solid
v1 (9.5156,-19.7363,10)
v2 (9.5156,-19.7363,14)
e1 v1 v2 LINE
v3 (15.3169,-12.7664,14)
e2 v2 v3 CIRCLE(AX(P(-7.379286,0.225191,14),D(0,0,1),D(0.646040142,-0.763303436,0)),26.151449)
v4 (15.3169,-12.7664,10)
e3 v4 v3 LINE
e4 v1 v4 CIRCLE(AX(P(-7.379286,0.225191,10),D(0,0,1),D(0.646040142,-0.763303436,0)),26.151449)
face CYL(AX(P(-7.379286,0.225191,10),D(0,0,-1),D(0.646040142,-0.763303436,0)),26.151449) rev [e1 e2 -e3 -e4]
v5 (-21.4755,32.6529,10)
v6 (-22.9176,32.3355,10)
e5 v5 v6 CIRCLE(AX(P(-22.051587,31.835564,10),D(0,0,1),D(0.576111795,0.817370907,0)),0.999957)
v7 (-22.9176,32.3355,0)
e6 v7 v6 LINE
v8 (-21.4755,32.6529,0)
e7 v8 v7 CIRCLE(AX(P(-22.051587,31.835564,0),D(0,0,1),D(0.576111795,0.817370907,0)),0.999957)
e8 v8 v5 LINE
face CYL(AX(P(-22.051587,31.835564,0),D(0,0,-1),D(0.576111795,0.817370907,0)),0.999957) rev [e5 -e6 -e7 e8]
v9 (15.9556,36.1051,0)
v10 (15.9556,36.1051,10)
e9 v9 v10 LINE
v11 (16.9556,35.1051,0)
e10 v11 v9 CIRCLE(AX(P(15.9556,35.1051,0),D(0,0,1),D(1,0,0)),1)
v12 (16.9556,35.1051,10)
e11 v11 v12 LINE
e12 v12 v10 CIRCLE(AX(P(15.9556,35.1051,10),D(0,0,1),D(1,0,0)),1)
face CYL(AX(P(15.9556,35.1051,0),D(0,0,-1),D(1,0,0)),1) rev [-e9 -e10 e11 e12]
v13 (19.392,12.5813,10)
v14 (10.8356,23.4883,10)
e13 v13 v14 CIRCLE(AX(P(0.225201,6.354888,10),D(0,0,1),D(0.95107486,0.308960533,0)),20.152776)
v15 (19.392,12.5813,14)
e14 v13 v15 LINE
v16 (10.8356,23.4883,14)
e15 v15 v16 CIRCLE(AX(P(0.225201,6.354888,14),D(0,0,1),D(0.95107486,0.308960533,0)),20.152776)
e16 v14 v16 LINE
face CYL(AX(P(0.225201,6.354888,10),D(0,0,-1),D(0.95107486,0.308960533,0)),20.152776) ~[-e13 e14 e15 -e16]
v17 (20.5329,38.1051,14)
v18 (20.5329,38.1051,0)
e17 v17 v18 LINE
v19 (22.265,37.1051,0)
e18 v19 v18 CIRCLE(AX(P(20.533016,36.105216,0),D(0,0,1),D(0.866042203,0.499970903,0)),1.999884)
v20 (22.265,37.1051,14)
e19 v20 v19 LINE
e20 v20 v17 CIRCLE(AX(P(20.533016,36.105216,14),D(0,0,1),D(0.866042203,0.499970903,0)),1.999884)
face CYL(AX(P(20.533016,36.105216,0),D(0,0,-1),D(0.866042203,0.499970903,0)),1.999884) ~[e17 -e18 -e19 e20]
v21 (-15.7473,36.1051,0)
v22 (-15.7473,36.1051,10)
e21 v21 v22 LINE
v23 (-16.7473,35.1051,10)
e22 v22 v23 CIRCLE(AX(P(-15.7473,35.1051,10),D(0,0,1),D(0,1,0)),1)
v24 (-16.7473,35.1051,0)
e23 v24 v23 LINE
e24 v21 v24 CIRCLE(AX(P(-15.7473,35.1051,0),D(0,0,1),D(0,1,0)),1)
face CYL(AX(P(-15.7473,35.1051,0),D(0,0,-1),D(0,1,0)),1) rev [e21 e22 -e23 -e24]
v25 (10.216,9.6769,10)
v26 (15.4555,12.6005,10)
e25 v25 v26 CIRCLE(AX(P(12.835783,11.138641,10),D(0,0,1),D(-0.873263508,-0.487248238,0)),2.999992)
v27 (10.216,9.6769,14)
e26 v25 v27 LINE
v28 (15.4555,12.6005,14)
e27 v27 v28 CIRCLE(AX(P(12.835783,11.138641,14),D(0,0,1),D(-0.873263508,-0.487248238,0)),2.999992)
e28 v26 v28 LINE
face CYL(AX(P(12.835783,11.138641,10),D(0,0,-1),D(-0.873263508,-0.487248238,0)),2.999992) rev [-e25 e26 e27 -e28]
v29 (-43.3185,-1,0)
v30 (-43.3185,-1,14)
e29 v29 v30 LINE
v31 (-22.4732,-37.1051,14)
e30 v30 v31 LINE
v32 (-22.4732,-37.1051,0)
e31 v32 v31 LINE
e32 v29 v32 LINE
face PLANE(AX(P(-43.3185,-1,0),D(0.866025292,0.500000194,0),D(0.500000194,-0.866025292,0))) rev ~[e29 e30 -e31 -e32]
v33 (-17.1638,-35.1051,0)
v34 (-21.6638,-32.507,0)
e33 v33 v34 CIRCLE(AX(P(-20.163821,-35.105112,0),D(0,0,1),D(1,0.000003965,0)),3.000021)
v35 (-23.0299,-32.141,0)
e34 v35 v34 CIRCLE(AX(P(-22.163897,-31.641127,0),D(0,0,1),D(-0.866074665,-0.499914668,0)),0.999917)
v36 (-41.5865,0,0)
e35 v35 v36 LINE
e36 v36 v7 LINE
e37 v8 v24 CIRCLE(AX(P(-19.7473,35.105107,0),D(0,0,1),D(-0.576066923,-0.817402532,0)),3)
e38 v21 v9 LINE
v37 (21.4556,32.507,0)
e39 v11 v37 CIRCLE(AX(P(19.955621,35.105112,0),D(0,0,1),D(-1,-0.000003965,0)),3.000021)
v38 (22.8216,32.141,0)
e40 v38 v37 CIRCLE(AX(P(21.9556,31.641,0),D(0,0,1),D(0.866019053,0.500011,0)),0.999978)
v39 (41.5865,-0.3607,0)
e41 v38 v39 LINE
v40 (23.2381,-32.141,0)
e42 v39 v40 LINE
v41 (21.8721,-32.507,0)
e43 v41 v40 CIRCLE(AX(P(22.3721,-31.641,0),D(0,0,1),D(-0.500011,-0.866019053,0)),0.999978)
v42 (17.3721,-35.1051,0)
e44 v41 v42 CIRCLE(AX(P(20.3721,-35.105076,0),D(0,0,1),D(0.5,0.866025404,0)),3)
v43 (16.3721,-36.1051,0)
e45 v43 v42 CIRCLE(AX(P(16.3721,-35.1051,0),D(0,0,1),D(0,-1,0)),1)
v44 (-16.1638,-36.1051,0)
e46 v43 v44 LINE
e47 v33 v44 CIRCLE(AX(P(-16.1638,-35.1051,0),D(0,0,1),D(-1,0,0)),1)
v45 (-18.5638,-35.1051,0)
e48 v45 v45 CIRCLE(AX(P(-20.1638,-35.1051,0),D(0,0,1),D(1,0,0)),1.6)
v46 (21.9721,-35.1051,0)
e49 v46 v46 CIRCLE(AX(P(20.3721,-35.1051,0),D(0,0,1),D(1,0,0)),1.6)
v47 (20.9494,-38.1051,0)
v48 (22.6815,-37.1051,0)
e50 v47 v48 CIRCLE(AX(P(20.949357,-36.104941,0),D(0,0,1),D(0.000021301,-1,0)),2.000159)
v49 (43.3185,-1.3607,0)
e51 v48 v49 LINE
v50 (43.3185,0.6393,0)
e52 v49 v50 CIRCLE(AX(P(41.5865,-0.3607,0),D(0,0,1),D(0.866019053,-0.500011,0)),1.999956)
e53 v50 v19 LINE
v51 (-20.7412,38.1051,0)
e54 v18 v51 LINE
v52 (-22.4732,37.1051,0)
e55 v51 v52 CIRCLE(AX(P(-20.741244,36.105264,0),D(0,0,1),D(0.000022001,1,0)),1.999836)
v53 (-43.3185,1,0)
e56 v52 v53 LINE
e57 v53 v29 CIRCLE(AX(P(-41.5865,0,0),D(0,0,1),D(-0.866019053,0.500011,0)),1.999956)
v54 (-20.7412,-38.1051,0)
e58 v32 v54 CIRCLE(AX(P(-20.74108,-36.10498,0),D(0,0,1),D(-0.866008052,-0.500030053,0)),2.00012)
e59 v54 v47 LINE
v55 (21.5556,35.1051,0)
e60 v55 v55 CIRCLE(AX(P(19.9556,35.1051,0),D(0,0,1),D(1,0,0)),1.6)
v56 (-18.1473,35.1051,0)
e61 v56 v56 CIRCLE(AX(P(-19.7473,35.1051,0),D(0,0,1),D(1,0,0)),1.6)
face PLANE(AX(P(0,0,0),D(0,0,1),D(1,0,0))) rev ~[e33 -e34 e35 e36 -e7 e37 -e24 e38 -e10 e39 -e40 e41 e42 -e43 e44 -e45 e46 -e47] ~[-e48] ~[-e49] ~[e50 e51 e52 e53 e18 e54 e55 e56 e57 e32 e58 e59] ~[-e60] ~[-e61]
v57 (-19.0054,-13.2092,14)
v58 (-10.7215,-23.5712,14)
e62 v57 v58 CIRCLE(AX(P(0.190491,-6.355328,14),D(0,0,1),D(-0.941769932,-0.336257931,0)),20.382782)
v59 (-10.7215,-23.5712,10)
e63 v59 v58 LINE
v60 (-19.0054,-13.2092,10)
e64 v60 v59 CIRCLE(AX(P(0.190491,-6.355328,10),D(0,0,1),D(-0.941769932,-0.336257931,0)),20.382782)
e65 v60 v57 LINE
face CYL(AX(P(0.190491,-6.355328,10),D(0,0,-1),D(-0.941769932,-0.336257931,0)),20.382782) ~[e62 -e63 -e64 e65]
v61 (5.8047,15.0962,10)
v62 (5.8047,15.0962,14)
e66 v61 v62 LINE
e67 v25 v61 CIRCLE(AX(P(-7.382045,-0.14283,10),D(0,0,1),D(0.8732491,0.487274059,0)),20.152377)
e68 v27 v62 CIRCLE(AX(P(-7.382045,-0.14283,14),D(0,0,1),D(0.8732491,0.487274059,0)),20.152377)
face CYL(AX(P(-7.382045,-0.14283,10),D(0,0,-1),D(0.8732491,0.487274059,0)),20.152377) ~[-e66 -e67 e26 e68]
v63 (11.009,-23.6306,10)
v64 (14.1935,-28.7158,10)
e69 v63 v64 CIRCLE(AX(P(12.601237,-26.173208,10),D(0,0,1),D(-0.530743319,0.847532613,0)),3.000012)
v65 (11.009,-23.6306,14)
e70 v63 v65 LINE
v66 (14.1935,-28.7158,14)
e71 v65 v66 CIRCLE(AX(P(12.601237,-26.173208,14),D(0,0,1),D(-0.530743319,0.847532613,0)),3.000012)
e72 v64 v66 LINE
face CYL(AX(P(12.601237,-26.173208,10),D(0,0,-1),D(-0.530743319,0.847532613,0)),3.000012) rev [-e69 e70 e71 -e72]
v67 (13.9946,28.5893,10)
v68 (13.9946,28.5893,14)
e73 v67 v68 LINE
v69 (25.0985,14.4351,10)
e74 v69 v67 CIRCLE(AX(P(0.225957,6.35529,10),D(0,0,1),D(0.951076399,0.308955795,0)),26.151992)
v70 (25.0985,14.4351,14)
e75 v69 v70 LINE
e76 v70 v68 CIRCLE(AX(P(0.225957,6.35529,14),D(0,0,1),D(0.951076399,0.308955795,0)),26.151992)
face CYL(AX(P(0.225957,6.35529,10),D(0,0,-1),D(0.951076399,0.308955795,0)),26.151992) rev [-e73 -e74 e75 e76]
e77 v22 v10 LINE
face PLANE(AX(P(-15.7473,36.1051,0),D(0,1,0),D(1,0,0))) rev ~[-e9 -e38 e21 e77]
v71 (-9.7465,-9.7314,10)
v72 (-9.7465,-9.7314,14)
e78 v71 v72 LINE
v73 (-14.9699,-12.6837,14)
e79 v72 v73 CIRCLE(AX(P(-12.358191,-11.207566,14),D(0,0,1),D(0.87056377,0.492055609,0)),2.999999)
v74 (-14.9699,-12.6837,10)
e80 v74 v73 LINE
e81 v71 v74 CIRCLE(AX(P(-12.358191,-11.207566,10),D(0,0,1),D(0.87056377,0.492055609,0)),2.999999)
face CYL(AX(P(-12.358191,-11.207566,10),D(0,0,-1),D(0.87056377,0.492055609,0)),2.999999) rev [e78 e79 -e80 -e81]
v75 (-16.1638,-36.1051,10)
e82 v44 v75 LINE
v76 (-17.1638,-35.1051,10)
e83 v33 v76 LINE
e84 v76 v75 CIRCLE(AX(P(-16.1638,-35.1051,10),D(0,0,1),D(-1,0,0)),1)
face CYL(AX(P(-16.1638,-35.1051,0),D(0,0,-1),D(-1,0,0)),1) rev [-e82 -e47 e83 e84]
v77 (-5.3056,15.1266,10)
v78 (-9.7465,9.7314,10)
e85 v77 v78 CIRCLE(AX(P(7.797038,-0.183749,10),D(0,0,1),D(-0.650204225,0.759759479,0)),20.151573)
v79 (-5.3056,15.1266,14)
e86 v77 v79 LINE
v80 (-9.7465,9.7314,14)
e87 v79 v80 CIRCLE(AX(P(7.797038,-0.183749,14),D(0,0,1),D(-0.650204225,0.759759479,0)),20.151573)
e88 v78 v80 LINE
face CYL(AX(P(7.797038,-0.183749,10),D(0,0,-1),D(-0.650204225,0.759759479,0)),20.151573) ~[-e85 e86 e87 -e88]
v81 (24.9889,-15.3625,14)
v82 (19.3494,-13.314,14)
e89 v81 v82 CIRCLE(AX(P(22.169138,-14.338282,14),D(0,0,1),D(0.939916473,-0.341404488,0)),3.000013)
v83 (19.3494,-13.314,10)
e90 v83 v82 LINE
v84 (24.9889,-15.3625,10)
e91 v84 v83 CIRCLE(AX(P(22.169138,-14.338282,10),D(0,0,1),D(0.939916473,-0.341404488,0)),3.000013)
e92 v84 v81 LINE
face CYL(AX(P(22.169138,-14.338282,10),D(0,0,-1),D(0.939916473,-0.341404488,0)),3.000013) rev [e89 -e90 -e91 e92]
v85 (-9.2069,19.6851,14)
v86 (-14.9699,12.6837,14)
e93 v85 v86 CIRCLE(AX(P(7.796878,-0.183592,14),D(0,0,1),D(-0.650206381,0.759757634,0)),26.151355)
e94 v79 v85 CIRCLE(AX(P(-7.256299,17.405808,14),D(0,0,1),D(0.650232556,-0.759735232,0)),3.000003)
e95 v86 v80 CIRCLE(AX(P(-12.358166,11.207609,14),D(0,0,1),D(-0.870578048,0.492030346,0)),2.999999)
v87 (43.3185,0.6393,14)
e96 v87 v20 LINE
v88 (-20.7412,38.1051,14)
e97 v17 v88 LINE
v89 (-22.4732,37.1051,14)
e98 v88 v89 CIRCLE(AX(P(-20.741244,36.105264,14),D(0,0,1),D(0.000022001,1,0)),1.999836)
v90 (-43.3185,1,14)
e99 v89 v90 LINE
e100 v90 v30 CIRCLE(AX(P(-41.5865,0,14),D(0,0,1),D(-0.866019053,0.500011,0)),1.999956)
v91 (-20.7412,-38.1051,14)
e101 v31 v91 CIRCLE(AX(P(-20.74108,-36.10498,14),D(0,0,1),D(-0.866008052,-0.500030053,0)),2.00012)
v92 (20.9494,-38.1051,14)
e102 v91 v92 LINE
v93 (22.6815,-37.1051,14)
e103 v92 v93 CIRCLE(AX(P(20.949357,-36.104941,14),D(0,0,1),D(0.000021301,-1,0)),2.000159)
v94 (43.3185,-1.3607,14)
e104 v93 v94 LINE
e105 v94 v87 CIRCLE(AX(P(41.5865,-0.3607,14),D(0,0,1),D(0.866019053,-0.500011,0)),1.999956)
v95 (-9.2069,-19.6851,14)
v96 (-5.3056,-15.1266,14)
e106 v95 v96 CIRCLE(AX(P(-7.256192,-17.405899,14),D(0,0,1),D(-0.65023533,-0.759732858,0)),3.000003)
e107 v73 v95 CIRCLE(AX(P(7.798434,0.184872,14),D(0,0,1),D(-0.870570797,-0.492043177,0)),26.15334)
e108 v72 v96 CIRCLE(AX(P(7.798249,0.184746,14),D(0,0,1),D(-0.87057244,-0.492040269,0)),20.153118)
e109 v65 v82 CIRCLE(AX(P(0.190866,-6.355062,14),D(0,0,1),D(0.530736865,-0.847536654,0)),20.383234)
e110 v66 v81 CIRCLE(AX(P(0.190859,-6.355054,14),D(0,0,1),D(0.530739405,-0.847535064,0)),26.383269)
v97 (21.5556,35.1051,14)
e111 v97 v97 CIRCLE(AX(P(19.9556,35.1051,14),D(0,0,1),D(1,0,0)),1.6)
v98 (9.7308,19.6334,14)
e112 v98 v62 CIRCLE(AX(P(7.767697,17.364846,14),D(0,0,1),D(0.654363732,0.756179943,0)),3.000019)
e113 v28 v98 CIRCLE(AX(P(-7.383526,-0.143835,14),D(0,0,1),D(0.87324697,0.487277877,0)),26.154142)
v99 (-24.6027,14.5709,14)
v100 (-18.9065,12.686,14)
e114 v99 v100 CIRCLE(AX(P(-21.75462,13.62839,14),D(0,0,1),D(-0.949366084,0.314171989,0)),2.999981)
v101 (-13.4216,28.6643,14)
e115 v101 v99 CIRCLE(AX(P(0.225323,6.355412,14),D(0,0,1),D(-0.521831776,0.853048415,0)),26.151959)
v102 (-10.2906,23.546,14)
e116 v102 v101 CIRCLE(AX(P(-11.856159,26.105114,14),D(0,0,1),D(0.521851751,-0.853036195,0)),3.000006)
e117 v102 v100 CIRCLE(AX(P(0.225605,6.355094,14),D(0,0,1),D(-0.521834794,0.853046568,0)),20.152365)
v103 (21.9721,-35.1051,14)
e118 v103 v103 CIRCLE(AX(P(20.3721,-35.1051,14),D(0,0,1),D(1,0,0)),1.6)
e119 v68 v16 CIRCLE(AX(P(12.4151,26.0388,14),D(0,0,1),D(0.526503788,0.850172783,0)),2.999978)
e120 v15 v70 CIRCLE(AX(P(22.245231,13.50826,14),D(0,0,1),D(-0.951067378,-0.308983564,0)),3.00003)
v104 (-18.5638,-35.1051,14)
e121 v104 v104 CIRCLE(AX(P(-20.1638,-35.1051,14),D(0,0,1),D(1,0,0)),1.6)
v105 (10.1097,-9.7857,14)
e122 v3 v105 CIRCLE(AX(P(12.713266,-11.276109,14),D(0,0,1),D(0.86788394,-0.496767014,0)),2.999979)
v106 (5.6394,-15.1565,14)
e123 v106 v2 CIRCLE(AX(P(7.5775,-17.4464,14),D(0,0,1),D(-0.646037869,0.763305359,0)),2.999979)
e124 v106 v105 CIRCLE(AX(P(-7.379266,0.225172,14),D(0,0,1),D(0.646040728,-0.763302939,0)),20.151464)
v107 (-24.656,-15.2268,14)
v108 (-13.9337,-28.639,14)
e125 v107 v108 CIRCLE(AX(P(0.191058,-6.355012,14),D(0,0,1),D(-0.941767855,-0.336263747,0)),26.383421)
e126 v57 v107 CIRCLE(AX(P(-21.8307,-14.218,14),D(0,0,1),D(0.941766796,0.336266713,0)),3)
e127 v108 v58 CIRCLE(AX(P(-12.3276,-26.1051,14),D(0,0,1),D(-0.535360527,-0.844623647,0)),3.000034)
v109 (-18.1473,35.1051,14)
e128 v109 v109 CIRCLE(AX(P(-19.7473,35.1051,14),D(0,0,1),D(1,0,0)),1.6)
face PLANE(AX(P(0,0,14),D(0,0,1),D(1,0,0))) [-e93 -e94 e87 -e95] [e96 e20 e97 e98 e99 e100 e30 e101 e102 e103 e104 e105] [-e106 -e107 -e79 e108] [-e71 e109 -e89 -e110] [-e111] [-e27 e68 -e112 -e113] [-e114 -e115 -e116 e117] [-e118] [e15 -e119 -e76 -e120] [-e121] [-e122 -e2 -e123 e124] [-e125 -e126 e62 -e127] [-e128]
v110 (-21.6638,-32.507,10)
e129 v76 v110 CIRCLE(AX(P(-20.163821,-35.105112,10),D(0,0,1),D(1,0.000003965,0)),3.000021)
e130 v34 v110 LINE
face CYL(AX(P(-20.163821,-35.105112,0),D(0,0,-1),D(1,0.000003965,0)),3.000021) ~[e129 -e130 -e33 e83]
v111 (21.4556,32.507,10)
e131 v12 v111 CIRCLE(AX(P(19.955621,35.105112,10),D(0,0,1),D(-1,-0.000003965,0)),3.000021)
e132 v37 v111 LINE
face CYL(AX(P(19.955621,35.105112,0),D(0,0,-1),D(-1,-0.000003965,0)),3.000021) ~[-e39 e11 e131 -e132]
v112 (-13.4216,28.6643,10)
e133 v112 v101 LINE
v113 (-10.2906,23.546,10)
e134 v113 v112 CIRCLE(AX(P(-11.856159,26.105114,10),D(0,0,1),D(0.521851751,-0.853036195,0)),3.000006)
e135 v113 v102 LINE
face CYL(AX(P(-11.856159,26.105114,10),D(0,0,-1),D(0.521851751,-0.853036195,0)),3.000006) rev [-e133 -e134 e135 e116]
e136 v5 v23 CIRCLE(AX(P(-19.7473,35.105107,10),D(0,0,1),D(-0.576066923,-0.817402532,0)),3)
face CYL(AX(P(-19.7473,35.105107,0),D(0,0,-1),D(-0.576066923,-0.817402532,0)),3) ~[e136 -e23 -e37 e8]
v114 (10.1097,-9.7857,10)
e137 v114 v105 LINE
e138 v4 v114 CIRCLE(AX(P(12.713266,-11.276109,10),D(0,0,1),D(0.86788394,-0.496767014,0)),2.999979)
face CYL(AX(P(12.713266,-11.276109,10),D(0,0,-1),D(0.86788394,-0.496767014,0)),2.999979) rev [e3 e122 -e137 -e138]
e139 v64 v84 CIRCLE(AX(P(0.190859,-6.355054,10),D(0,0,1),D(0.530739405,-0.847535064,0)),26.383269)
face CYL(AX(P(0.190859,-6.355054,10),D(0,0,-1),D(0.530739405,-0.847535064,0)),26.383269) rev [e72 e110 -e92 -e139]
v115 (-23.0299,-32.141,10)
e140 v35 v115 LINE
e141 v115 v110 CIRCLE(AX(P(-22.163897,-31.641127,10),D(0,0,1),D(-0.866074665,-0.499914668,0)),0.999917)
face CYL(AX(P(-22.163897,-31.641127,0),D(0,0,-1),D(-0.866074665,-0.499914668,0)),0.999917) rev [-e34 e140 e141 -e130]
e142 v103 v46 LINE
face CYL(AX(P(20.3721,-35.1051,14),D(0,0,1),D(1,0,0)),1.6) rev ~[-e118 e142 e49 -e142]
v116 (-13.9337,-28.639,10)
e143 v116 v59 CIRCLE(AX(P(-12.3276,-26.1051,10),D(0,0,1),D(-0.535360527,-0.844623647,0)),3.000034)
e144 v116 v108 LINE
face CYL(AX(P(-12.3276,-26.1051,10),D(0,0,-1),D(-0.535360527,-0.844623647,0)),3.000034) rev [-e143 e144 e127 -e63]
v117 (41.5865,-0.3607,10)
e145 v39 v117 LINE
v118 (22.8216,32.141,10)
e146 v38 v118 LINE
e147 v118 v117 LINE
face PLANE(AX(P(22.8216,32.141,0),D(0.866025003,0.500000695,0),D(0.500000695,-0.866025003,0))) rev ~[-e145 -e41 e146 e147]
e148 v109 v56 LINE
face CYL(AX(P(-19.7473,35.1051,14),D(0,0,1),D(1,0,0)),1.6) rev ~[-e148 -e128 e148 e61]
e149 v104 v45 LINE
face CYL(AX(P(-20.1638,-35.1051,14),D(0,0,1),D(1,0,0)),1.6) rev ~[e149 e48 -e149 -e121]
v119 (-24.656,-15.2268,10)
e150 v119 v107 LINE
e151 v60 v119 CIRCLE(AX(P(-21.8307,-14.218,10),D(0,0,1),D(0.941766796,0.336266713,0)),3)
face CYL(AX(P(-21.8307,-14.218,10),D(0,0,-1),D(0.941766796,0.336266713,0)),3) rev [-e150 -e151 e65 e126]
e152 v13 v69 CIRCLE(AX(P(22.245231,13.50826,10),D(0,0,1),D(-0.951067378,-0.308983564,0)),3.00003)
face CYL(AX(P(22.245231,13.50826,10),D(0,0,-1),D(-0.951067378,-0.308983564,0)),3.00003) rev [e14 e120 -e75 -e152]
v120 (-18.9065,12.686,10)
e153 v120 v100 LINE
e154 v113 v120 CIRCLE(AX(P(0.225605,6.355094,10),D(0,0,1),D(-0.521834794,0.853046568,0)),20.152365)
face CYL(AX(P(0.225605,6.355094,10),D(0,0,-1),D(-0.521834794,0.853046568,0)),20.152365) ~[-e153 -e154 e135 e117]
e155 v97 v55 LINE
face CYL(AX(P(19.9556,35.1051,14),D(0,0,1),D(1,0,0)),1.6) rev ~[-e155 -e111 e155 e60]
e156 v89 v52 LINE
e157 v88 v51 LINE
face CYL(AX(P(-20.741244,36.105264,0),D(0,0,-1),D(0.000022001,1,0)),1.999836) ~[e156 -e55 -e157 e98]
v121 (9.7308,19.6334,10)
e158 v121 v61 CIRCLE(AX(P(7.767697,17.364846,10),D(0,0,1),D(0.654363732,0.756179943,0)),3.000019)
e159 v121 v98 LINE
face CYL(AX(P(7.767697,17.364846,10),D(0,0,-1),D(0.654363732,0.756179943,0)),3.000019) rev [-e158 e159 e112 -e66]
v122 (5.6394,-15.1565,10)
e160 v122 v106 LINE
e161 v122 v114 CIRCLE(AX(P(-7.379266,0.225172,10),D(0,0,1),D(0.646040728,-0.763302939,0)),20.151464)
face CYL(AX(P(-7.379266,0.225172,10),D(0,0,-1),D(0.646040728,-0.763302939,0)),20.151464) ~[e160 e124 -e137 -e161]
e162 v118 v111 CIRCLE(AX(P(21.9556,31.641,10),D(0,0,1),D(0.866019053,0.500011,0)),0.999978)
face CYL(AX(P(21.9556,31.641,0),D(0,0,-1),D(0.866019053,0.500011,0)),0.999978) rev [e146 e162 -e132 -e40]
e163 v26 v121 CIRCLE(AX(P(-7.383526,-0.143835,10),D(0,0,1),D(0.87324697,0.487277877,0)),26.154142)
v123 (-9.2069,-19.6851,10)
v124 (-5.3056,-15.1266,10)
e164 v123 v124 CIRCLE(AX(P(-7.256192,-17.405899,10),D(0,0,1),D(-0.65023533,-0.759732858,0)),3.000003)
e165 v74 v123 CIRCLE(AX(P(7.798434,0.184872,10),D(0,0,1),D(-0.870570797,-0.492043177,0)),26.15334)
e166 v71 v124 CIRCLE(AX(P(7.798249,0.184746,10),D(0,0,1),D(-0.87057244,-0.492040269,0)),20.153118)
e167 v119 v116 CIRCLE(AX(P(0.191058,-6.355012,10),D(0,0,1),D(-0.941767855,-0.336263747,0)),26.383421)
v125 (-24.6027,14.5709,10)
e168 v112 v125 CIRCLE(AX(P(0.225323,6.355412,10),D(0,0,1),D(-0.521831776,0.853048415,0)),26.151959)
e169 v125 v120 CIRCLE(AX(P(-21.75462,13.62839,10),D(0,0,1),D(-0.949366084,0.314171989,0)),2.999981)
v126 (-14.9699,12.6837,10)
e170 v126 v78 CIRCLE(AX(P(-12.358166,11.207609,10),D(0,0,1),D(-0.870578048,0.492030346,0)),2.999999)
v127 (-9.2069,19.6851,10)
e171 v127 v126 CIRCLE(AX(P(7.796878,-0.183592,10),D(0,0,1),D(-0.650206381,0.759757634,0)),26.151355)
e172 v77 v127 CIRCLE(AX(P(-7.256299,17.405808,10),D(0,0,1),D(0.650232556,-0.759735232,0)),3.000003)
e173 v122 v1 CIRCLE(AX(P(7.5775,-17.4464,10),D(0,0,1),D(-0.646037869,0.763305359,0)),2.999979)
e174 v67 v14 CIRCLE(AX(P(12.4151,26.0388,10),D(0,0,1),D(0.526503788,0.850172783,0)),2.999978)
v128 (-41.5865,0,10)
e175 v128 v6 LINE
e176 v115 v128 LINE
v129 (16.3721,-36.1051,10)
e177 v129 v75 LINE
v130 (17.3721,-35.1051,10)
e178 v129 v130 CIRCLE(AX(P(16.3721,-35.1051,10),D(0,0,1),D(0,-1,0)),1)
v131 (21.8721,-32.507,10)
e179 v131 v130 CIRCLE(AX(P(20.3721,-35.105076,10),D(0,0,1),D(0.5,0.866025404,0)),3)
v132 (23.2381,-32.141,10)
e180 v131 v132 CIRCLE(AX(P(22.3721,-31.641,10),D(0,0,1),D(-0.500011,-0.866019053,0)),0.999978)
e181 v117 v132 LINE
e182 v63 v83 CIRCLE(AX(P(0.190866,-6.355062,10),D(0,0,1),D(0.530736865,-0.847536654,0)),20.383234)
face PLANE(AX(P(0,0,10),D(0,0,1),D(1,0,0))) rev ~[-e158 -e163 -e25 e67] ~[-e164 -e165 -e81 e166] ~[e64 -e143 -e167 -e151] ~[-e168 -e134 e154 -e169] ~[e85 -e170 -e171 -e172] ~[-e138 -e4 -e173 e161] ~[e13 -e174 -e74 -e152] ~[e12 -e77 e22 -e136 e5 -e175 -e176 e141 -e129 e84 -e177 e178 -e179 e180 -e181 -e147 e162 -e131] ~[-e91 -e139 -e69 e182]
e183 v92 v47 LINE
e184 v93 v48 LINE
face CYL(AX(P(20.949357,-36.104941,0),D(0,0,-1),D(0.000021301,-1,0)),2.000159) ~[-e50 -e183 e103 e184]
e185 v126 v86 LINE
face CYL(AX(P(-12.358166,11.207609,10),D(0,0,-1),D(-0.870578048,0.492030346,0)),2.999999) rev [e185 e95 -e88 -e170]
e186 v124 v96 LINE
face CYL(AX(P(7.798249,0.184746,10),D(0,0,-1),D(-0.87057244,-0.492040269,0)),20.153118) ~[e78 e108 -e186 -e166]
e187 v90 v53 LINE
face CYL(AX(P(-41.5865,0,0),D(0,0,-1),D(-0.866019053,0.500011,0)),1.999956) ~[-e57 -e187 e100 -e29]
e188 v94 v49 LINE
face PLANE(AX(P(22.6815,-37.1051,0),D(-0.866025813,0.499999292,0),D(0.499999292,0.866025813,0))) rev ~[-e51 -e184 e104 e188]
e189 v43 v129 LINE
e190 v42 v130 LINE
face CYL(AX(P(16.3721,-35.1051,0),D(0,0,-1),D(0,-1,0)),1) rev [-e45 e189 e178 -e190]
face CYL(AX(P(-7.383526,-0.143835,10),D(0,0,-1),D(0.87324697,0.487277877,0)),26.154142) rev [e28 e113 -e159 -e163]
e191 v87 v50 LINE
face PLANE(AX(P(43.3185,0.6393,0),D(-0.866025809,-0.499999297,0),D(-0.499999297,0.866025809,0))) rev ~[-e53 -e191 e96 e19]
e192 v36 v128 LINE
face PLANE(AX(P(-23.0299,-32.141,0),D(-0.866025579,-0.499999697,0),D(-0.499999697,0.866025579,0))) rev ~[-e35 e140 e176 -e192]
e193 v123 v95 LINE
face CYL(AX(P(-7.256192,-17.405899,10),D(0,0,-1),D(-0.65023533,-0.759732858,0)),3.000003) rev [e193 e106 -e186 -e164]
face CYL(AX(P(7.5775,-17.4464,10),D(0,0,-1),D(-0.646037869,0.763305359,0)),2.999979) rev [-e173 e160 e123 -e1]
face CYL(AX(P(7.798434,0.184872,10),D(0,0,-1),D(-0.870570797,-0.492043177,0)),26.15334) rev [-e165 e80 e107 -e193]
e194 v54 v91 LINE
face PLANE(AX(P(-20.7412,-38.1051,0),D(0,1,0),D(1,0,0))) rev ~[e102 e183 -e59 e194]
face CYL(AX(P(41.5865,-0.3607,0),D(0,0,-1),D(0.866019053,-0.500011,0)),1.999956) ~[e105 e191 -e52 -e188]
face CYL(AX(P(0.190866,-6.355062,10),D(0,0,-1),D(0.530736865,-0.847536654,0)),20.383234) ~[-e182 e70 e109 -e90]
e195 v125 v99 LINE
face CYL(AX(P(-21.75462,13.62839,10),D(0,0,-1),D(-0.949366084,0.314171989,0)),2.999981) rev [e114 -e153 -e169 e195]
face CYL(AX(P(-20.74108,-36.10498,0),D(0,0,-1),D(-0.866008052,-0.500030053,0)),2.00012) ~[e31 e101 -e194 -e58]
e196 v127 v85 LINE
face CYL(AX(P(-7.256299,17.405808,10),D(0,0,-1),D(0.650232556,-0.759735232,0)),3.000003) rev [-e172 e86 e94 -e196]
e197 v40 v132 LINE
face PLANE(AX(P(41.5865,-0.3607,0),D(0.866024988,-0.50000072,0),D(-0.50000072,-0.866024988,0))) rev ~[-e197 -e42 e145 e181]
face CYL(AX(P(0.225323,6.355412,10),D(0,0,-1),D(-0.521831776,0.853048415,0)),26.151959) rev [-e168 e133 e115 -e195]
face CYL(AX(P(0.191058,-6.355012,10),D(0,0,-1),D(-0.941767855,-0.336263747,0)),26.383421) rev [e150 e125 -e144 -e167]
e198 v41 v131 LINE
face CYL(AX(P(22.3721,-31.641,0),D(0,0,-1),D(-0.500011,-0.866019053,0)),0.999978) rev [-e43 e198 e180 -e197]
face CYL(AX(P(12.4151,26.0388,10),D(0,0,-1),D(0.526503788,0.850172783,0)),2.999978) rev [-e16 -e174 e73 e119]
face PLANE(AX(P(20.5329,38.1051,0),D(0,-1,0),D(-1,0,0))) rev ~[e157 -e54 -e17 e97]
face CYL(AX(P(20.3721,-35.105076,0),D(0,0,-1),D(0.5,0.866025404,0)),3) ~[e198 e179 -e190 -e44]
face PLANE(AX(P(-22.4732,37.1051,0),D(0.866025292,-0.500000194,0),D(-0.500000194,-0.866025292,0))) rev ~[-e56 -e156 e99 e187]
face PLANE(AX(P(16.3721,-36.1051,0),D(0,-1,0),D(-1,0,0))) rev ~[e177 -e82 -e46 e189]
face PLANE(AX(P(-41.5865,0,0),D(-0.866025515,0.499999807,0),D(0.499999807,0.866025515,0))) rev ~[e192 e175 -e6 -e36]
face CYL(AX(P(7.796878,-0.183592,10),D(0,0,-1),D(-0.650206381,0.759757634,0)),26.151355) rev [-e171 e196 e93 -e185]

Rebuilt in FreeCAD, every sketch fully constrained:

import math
import FreeCAD as App
import Part
import Sketcher
Q = App.Units.Quantity

doc = App.newDocument("Part")
body = doc.addObject("PartDesign::Body", "Body")

# Sketch on XY plane
sketch1 = doc.addObject("Sketcher::SketchObject", "Sketch")
body.addObject(sketch1)
sketch1.AttachmentSupport = (doc.XY_Plane, [""])
sketch1.MapMode = "FlatFace"
sketch1.addGeometry([
    Part.ArcOfCircle(Part.Circle(App.Vector(-41.6, 0, 0), App.Vector(0, 0, 1), 2), math.radians(150), math.radians(210)),  # 0
    Part.LineSegment(App.Vector(-43.3, -1, 0), App.Vector(-22.5, -37.1, 0)),  # 1
    Part.ArcOfCircle(Part.Circle(App.Vector(-20.7, -36.1, 0), App.Vector(0, 0, 1), 2), math.radians(-150), math.radians(-90)),  # 2
    Part.LineSegment(App.Vector(-20.7, -38.1, 0), App.Vector(20.9, -38.1, 0)),  # 3
    Part.ArcOfCircle(Part.Circle(App.Vector(20.9, -36.1, 0), App.Vector(0, 0, 1), 2), math.radians(-90), math.radians(-30)),  # 4
    Part.LineSegment(App.Vector(22.7, -37.1, 0), App.Vector(43.3, -1.4, 0)),  # 5
    Part.ArcOfCircle(Part.Circle(App.Vector(41.6, -0.4, 0), App.Vector(0, 0, 1), 2), math.radians(-30), math.radians(30)),  # 6
    Part.LineSegment(App.Vector(43.3, 0.6, 0), App.Vector(22.3, 37.1, 0)),  # 7
    Part.ArcOfCircle(Part.Circle(App.Vector(20.5, 36.1, 0), App.Vector(0, 0, 1), 2), math.radians(30), math.radians(90)),  # 8
    Part.LineSegment(App.Vector(20.5, 38.1, 0), App.Vector(-20.7, 38.1, 0)),  # 9
    Part.ArcOfCircle(Part.Circle(App.Vector(-20.7, 36.1, 0), App.Vector(0, 0, 1), 2), math.radians(90), math.radians(150)),  # 10
    Part.LineSegment(App.Vector(-22.5, 37.1, 0), App.Vector(-43.3, 1, 0)),  # 11
    Part.Circle(App.Vector(-20.2, -35.1, 0), App.Vector(0, 0, 1), 1.2),  # 12
    Part.Circle(App.Vector(20.4, -35.1, 0), App.Vector(0, 0, 1), 1.2),  # 13
    Part.ArcOfCircle(Part.Circle(App.Vector(-16.2, -35.1, 0), App.Vector(0, 0, 1), 1), math.radians(180), math.radians(270)),  # 14
    Part.ArcOfCircle(Part.Circle(App.Vector(-20.2, -35.1, 0), App.Vector(0, 0, 1), 3), math.radians(0), math.radians(120)),  # 15
    Part.ArcOfCircle(Part.Circle(App.Vector(-22.2, -31.6, 0), App.Vector(0, 0, 1), 1), math.radians(-150), math.radians(-60)),  # 16
    Part.LineSegment(App.Vector(-23, -32.1, 0), App.Vector(-41.6, 0, 0)),  # 17
    Part.LineSegment(App.Vector(-41.6, 0, 0), App.Vector(-22.9, 32.3, 0)),  # 18
    Part.ArcOfCircle(Part.Circle(App.Vector(-22.1, 31.8, 0), App.Vector(0, 0, 1), 1), math.radians(55), math.radians(150)),  # 19
    Part.ArcOfCircle(Part.Circle(App.Vector(-19.7, 35.1, 0), App.Vector(0, 0, 1), 3), math.radians(-125), math.radians(0)),  # 20
    Part.ArcOfCircle(Part.Circle(App.Vector(-15.7, 35.1, 0), App.Vector(0, 0, 1), 1), math.radians(90), math.radians(180)),  # 21
    Part.LineSegment(App.Vector(-15.7, 36.1, 0), App.Vector(16, 36.1, 0)),  # 22
    Part.ArcOfCircle(Part.Circle(App.Vector(16, 35.1, 0), App.Vector(0, 0, 1), 1), math.radians(0), math.radians(90)),  # 23
    Part.ArcOfCircle(Part.Circle(App.Vector(20, 35.1, 0), App.Vector(0, 0, 1), 3), math.radians(180), math.radians(300)),  # 24
    Part.ArcOfCircle(Part.Circle(App.Vector(22, 31.6, 0), App.Vector(0, 0, 1), 1), math.radians(30), math.radians(120)),  # 25
    Part.LineSegment(App.Vector(22.8, 32.1, 0), App.Vector(41.6, -0.4, 0)),  # 26
    Part.LineSegment(App.Vector(41.6, -0.4, 0), App.Vector(23.2, -32.1, 0)),  # 27
    Part.ArcOfCircle(Part.Circle(App.Vector(22.4, -31.6, 0), App.Vector(0, 0, 1), 1), math.radians(-120), math.radians(-30)),  # 28
    Part.ArcOfCircle(Part.Circle(App.Vector(20.4, -35.1, 0), App.Vector(0, 0, 1), 3), math.radians(60), math.radians(180)),  # 29
    Part.ArcOfCircle(Part.Circle(App.Vector(16.4, -35.1, 0), App.Vector(0, 0, 1), 1), math.radians(-90), math.radians(0)),  # 30
    Part.LineSegment(App.Vector(16.4, -36.1, 0), App.Vector(-16.2, -36.1, 0)),  # 31
    Part.Circle(App.Vector(-19.7, 35.1, 0), App.Vector(0, 0, 1), 1.2),  # 32
    Part.Circle(App.Vector(20, 35.1, 0), App.Vector(0, 0, 1), 1.2),  # 33
], False)
sketch1.addConstraint([
    Sketcher.Constraint("Tangent", 0, 2, 1, 1),
    Sketcher.Constraint("Tangent", 1, 2, 2, 1),
    Sketcher.Constraint("Tangent", 2, 2, 3, 1),
    Sketcher.Constraint("Tangent", 3, 2, 4, 1),
    Sketcher.Constraint("Tangent", 4, 2, 5, 1),
    Sketcher.Constraint("Tangent", 5, 2, 6, 1),
    Sketcher.Constraint("Tangent", 6, 2, 7, 1),
    Sketcher.Constraint("Tangent", 7, 2, 8, 1),
    Sketcher.Constraint("Tangent", 8, 2, 9, 1),
    Sketcher.Constraint("Tangent", 9, 2, 10, 1),
    Sketcher.Constraint("Tangent", 10, 2, 11, 1),
    Sketcher.Constraint("Tangent", 11, 2, 0, 1),
    Sketcher.Constraint("Tangent", 14, 1, 15, 1),
    Sketcher.Constraint("Tangent", 15, 2, 16, 2),
    Sketcher.Constraint("Tangent", 16, 1, 17, 1),
    Sketcher.Constraint("Coincident", 17, 2, 18, 1),
    Sketcher.Constraint("Tangent", 18, 2, 19, 2),
    Sketcher.Constraint("Tangent", 19, 1, 20, 1),
    Sketcher.Constraint("Tangent", 20, 2, 21, 2),
    Sketcher.Constraint("Tangent", 21, 1, 22, 1),
    Sketcher.Constraint("Tangent", 22, 2, 23, 2),
    Sketcher.Constraint("Tangent", 23, 1, 24, 1),
    Sketcher.Constraint("Tangent", 24, 2, 25, 2),
    Sketcher.Constraint("Tangent", 25, 1, 26, 1),
    Sketcher.Constraint("Coincident", 26, 2, 27, 1),
    Sketcher.Constraint("Tangent", 27, 2, 28, 2),
    Sketcher.Constraint("Tangent", 28, 1, 29, 1),
    Sketcher.Constraint("Tangent", 29, 2, 30, 2),
    Sketcher.Constraint("Tangent", 30, 1, 31, 1),
    Sketcher.Constraint("Tangent", 31, 2, 14, 2),
    Sketcher.Constraint("Horizontal", 3),
    Sketcher.Constraint("Horizontal", 9),
    Sketcher.Constraint("Horizontal", 22),
    Sketcher.Constraint("Horizontal", 31),
    Sketcher.Constraint("Coincident", 15, 3, 12, 3),
    Sketcher.Constraint("Coincident", 29, 3, 13, 3),
    Sketcher.Constraint("Coincident", 32, 3, 20, 3),
    Sketcher.Constraint("Coincident", 33, 3, 24, 3),
    Sketcher.Constraint("Coincident", 17, 2, 0, 3),
    Sketcher.Constraint("Coincident", 26, 2, 6, 3),
    Sketcher.Constraint("Equal", 0, 2),
    Sketcher.Constraint("Equal", 2, 4),
    Sketcher.Constraint("Equal", 4, 6),
    Sketcher.Constraint("Equal", 6, 8),
    Sketcher.Constraint("Equal", 8, 10),
    Sketcher.Constraint("Equal", 12, 13),
    Sketcher.Constraint("Equal", 14, 16),
    Sketcher.Constraint("Equal", 16, 19),
    Sketcher.Constraint("Equal", 15, 20),
    Sketcher.Constraint("Equal", 19, 21),
    Sketcher.Constraint("Equal", 21, 23),
    Sketcher.Constraint("Equal", 20, 24),
    Sketcher.Constraint("Equal", 23, 25),
    Sketcher.Constraint("Equal", 25, 28),
    Sketcher.Constraint("Equal", 24, 29),
    Sketcher.Constraint("Equal", 28, 30),
    Sketcher.Constraint("Equal", 13, 32),
    Sketcher.Constraint("Equal", 32, 33),
    Sketcher.Constraint("Symmetric", 2, 3, 10, 3, -1),
    Sketcher.Constraint("PointOnObject", 0, 3, -1),
    Sketcher.Constraint("Parallel", 1, 7),
    Sketcher.Constraint("Parallel", 5, 11),
    Sketcher.Constraint("Parallel", 7, 17),
    Sketcher.Constraint("Parallel", 11, 18),
    Sketcher.Constraint("Parallel", 17, 26),
    Sketcher.Constraint("Parallel", 18, 27),
    Sketcher.Constraint("Horizontal", 12, 3, 13, 3),
    Sketcher.Constraint("Horizontal", 13, 3, 14, 3),
    Sketcher.Constraint("Horizontal", 20, 3, 21, 3),
    Sketcher.Constraint("Horizontal", 23, 3, 24, 3),
    Sketcher.Constraint("Horizontal", 16, 3, 28, 3),
    Sketcher.Constraint("Horizontal", 10, 3, 21, 1),
    Sketcher.Constraint("Horizontal", 4, 3, 30, 1),
    Sketcher.Constraint("Radius", 0, Q("2 mm")),
    Sketcher.Constraint("Radius", 14, Q("1 mm")),
    Sketcher.Constraint("Radius", 15, Q("3 mm")),
    Sketcher.Constraint("Diameter", 12, Q("2.5 mm")),
    Sketcher.Constraint("Angle", 1, Q("-60 deg")),
    Sketcher.Constraint("DistanceX", 16, 3, 12, 3, Q("2 mm")),
    Sketcher.Constraint("DistanceX", 24, 3, 25, 3, Q("2 mm")),
    Sketcher.Constraint("DistanceX", 9, 2, 9, 1, Q("41.274 mm")),
    Sketcher.Constraint("DistanceX", 22, 1, 22, 2, Q("31.703 mm")),
    Sketcher.Constraint("DistanceX", 31, 2, 31, 1, Q("32.536 mm")),
    Sketcher.Constraint("DistanceX", 16, 1, -1, 1, Q("23.03 mm")),
    Sketcher.Constraint("Distance", 5, Q("41.274 mm")),
])
pad1 = doc.addObject("PartDesign::Pad", "Pad")
body.addObject(pad1)
pad1.Profile = sketch1
pad1.Length = 10

# Sketch on XY plane
sketch2 = doc.addObject("Sketcher::SketchObject", "Sketch001")
body.addObject(sketch2)
sketch2.AttachmentSupport = (doc.XY_Plane, [""])
sketch2.MapMode = "FlatFace"
sketch2.AttachmentOffset = App.Placement(App.Vector(0, 0, 10), App.Rotation())
sketch2.addGeometry([
    Part.LineSegment(App.Vector(-43.3185, -1, 0), App.Vector(-22.4732, -37.1051, 0)),  # 0
    Part.ArcOfCircle(Part.Circle(App.Vector(-20.7412, -36.1051, 0), App.Vector(0, 0, 1), 1.999956), math.radians(-149.999272), math.radians(-90)),  # 1
    Part.LineSegment(App.Vector(-20.7412, -38.1051, 0), App.Vector(20.9494, -38.1051, 0)),  # 2
    Part.ArcOfCircle(Part.Circle(App.Vector(20.9494, -36.1051, 0), App.Vector(0, 0, 1), 2), math.radians(-90), math.radians(-29.999295)),  # 3
    Part.LineSegment(App.Vector(22.6815, -37.1051, 0), App.Vector(43.3185, -1.3607, 0)),  # 4
    Part.ArcOfCircle(Part.Circle(App.Vector(41.5865, -0.3607, 0), App.Vector(0, 0, 1), 1.999956), math.radians(-30.000728), math.radians(30.000728)),  # 5
    Part.LineSegment(App.Vector(43.3185, 0.6393, 0), App.Vector(22.265, 37.1051, 0)),  # 6
    Part.ArcOfCircle(Part.Circle(App.Vector(20.5329, 36.1051, 0), App.Vector(0, 0, 1), 2.000043), math.radians(29.999295), math.radians(90)),  # 7
    Part.LineSegment(App.Vector(20.5329, 38.1051, 0), App.Vector(-20.7412, 38.1051, 0)),  # 8
    Part.ArcOfCircle(Part.Circle(App.Vector(-20.7412, 36.1051, 0), App.Vector(0, 0, 1), 2), math.radians(90), math.radians(149.999272)),  # 9
    Part.LineSegment(App.Vector(-22.4732, 37.1051, 0), App.Vector(-43.3185, 1, 0)),  # 10
    Part.ArcOfCircle(Part.Circle(App.Vector(-41.5865, 0, 0), App.Vector(0, 0, 1), 1.999956), math.radians(149.999272), math.radians(210.000728)),  # 11
    Part.Circle(App.Vector(-20.1638, -35.1051, 0), App.Vector(0, 0, 1), 1.25),  # 12
    Part.Circle(App.Vector(20.3721, -35.1051, 0), App.Vector(0, 0, 1), 1.25),  # 13
    Part.Circle(App.Vector(-19.7473, 35.1051, 0), App.Vector(0, 0, 1), 1.25),  # 14
    Part.Circle(App.Vector(19.9556, 35.1051, 0), App.Vector(0, 0, 1), 1.25),  # 15
    Part.ArcOfCircle(Part.Circle(App.Vector(12.7133, -11.2761, 0), App.Vector(0, 0, 1), 2.999955), math.radians(-29.786811), math.radians(150.211531)),  # 16
    Part.ArcOfCircle(Part.Circle(App.Vector(-7.3799, 0.2258, 0), App.Vector(0, 0, 1), 26.152311), math.radians(-49.756128), math.radians(-29.787871)),  # 17
    Part.ArcOfCircle(Part.Circle(App.Vector(7.5775, -17.4464, 0), App.Vector(0, 0, 1), 2.999979), math.radians(130.243536), math.radians(310.243536)),  # 18
    Part.ArcOfCircle(Part.Circle(App.Vector(-7.3799, 0.2258, 0), App.Vector(0, 0, 1), 20.152353), math.radians(-49.756029), math.radians(-29.78794)),  # 19
    Part.ArcOfCircle(Part.Circle(App.Vector(-7.2562, 17.4058, 0), App.Vector(0, 0, 1), 2.999932), math.radians(-49.442209), math.radians(130.558001)),  # 20
    Part.ArcOfCircle(Part.Circle(App.Vector(7.7976, -0.1843, 0), App.Vector(0, 0, 1), 20.152357), math.radians(130.557196), math.radians(150.525424)),  # 21
    Part.ArcOfCircle(Part.Circle(App.Vector(-12.3582, 11.2076, 0), App.Vector(0, 0, 1), 2.999975), math.radians(150.525412), math.radians(330.52375)),  # 22
    Part.ArcOfCircle(Part.Circle(App.Vector(7.796878, -0.183592, 0), App.Vector(0, 0, 1), 26.151355), math.radians(130.557164), math.radians(150.525803)),  # 23
    Part.ArcOfCircle(Part.Circle(App.Vector(-11.8561, 26.1051, 0), App.Vector(0, 0, 1), 2.999964), math.radians(-58.544269), math.radians(121.454734)),  # 24
    Part.ArcOfCircle(Part.Circle(App.Vector(0.2256, 6.3551, 0), App.Vector(0, 0, 1), 20.152357), math.radians(121.455402), math.radians(161.690383)),  # 25
    Part.ArcOfCircle(Part.Circle(App.Vector(-21.7546, 13.6284, 0), App.Vector(0, 0, 1), 2.999997), math.radians(161.689465), math.radians(341.691278)),  # 26
    Part.ArcOfCircle(Part.Circle(App.Vector(0.2256, 6.3551, 0), App.Vector(0, 0, 1), 26.15237), math.radians(121.455363), math.radians(161.69038)),  # 27
    Part.ArcOfCircle(Part.Circle(App.Vector(12.8358, 11.1387, 0), App.Vector(0, 0, 1), 3.000035), math.radians(-150.83929), math.radians(29.161641)),  # 28
    Part.ArcOfCircle(Part.Circle(App.Vector(-7.382, -0.1428, 0), App.Vector(0, 0, 1), 20.152323), math.radians(29.161557), math.radians(49.129518)),  # 29
    Part.ArcOfCircle(Part.Circle(App.Vector(7.7677, 17.3648, 0), App.Vector(0, 0, 1), 3.000051), math.radians(49.129202), math.radians(229.130647)),  # 30
    Part.ArcOfCircle(Part.Circle(App.Vector(-7.383526, -0.143835, 0), App.Vector(0, 0, 1), 26.154142), math.radians(29.161821), math.radians(49.128568)),  # 31
    Part.ArcOfCircle(Part.Circle(App.Vector(22.2452, 13.5082, 0), App.Vector(0, 0, 1), 2.999982), math.radians(-162.002922), math.radians(17.996488)),  # 32
    Part.ArcOfCircle(Part.Circle(App.Vector(0.2256, 6.3551, 0), App.Vector(0, 0, 1), 20.152357), math.radians(17.996374), math.radians(58.231495)),  # 33
    Part.ArcOfCircle(Part.Circle(App.Vector(12.4151, 26.0388, 0), App.Vector(0, 0, 1), 2.999978), math.radians(58.230467), math.radians(238.230467)),  # 34
    Part.ArcOfCircle(Part.Circle(App.Vector(0.2256, 6.3551, 0), App.Vector(0, 0, 1), 26.15237), math.radians(17.996468), math.radians(58.231259)),  # 35
    Part.ArcOfCircle(Part.Circle(App.Vector(-21.8307, -14.218, 0), App.Vector(0, 0, 1), 3), math.radians(19.649585), math.radians(199.649585)),  # 36
    Part.ArcOfCircle(Part.Circle(App.Vector(0.1909, -6.3551, 0), App.Vector(0, 0, 1), 20.383184), math.radians(-160.350733), math.radians(-122.368507)),  # 37
    Part.ArcOfCircle(Part.Circle(App.Vector(-12.3276, -26.1051, 0), App.Vector(0, 0, 1), 3.000034), math.radians(-122.368365), math.radians(57.631635)),  # 38
    Part.ArcOfCircle(Part.Circle(App.Vector(0.1909, -6.3551, 0), App.Vector(0, 0, 1), 26.383243), math.radians(-160.350661), math.radians(-122.368475)),  # 39
    Part.ArcOfCircle(Part.Circle(App.Vector(-12.3582, -11.2076, 0), App.Vector(0, 0, 1), 3.000024), math.radians(29.47625), math.radians(209.474588)),  # 40
    Part.ArcOfCircle(Part.Circle(App.Vector(7.7976, 0.1843, 0), App.Vector(0, 0, 1), 20.152334), math.radians(-150.525424), math.radians(-130.557196)),  # 41
    Part.ArcOfCircle(Part.Circle(App.Vector(-7.2562, -17.4058, 0), App.Vector(0, 0, 1), 3.000073), math.radians(-130.558001), math.radians(49.442209)),  # 42
    Part.ArcOfCircle(Part.Circle(App.Vector(7.798434, 0.184872, 0), App.Vector(0, 0, 1), 26.15334), math.radians(-150.525038), math.radians(-130.557929)),  # 43
    Part.ArcOfCircle(Part.Circle(App.Vector(12.6012, -26.1732, 0), App.Vector(0, 0, 1), 2.999986), math.radians(122.055185), math.radians(302.056803)),  # 44
    Part.ArcOfCircle(Part.Circle(App.Vector(0.1909, -6.3551, 0), App.Vector(0, 0, 1), 20.383244), math.radians(-57.944768), math.radians(-19.962429)),  # 45
    Part.ArcOfCircle(Part.Circle(App.Vector(22.1691, -14.3383, 0), App.Vector(0, 0, 1), 3.000043), math.radians(-19.961895), math.radians(160.035658)),  # 46
    Part.ArcOfCircle(Part.Circle(App.Vector(0.1909, -6.3551, 0), App.Vector(0, 0, 1), 26.383243), math.radians(-57.944595), math.radians(-19.962586)),  # 47
], False)
sketch2.addConstraint([
    Sketcher.Constraint("Coincident", 0, 2, 1, 1),
    Sketcher.Constraint("Coincident", 1, 2, 2, 1),
    Sketcher.Constraint("Coincident", 2, 2, 3, 1),
    Sketcher.Constraint("Coincident", 3, 2, 4, 1),
    Sketcher.Constraint("Coincident", 4, 2, 5, 1),
    Sketcher.Constraint("Coincident", 5, 2, 6, 1),
    Sketcher.Constraint("Coincident", 6, 2, 7, 1),
    Sketcher.Constraint("Coincident", 7, 2, 8, 1),
    Sketcher.Constraint("Coincident", 8, 2, 9, 1),
    Sketcher.Constraint("Coincident", 9, 2, 10, 1),
    Sketcher.Constraint("Coincident", 10, 2, 11, 1),
    Sketcher.Constraint("Coincident", 11, 2, 0, 1),
    Sketcher.Constraint("Coincident", 16, 1, 17, 2),
    Sketcher.Constraint("Coincident", 17, 1, 18, 2),
    Sketcher.Constraint("Coincident", 18, 1, 19, 1),
    Sketcher.Constraint("Coincident", 19, 2, 16, 2),
    Sketcher.Constraint("Coincident", 20, 1, 21, 1),
    Sketcher.Constraint("Coincident", 21, 2, 22, 2),
    Sketcher.Constraint("Coincident", 22, 1, 23, 2),
    Sketcher.Constraint("Coincident", 23, 1, 20, 2),
    Sketcher.Constraint("Coincident", 24, 1, 25, 1),
    Sketcher.Constraint("Coincident", 25, 2, 26, 2),
    Sketcher.Constraint("Coincident", 26, 1, 27, 2),
    Sketcher.Constraint("Coincident", 27, 1, 24, 2),
    Sketcher.Constraint("Coincident", 28, 1, 29, 1),
    Sketcher.Constraint("Coincident", 29, 2, 30, 2),
    Sketcher.Constraint("Coincident", 30, 1, 31, 2),
    Sketcher.Constraint("Coincident", 31, 1, 28, 2),
    Sketcher.Constraint("Coincident", 32, 1, 33, 1),
    Sketcher.Constraint("Coincident", 33, 2, 34, 2),
    Sketcher.Constraint("Coincident", 34, 1, 35, 2),
    Sketcher.Constraint("Coincident", 35, 1, 32, 2),
    Sketcher.Constraint("Coincident", 36, 1, 37, 1),
    Sketcher.Constraint("Coincident", 37, 2, 38, 2),
    Sketcher.Constraint("Coincident", 38, 1, 39, 2),
    Sketcher.Constraint("Coincident", 39, 1, 36, 2),
    Sketcher.Constraint("Coincident", 40, 1, 41, 1),
    Sketcher.Constraint("Coincident", 41, 2, 42, 2),
    Sketcher.Constraint("Coincident", 42, 1, 43, 2),
    Sketcher.Constraint("Coincident", 43, 1, 40, 2),
    Sketcher.Constraint("Coincident", 44, 1, 45, 1),
    Sketcher.Constraint("Coincident", 45, 2, 46, 2),
    Sketcher.Constraint("Coincident", 46, 1, 47, 2),
    Sketcher.Constraint("Coincident", 47, 1, 44, 2),
    Sketcher.Constraint("Horizontal", 2),
    Sketcher.Constraint("Horizontal", 8),
    Sketcher.Constraint("Coincident", 19, 3, 17, 3),
    Sketcher.Constraint("Coincident", 27, 3, 25, 3),
    Sketcher.Constraint("Coincident", 33, 3, 25, 3),
    Sketcher.Constraint("Coincident", 35, 3, 25, 3),
    Sketcher.Constraint("Coincident", 39, 3, 37, 3),
    Sketcher.Constraint("Coincident", 45, 3, 37, 3),
    Sketcher.Constraint("Coincident", 47, 3, 37, 3),
    Sketcher.Constraint("PointOnObject", 11, 3, -1),
    Sketcher.Constraint("Diameter", 12, Q("2.5 mm")),
    Sketcher.Constraint("Diameter", 13, Q("2.5 mm")),
    Sketcher.Constraint("Diameter", 14, Q("2.5 mm")),
    Sketcher.Constraint("Diameter", 15, Q("2.5 mm")),
    Sketcher.Constraint("Radius", 1, Q("2 mm")),
    Sketcher.Constraint("Radius", 3, Q("2 mm")),
    Sketcher.Constraint("Radius", 5, Q("2 mm")),
    Sketcher.Constraint("Radius", 7, Q("2 mm")),
    Sketcher.Constraint("Radius", 9, Q("2 mm")),
    Sketcher.Constraint("Radius", 11, Q("2 mm")),
    Sketcher.Constraint("Radius", 16, Q("3 mm")),
    Sketcher.Constraint("Radius", 20, Q("3 mm")),
    Sketcher.Constraint("Radius", 22, Q("3 mm")),
    Sketcher.Constraint("Radius", 24, Q("3 mm")),
    Sketcher.Constraint("Radius", 28, Q("3 mm")),
    Sketcher.Constraint("Radius", 30, Q("3 mm")),
    Sketcher.Constraint("Radius", 32, Q("3 mm")),
    Sketcher.Constraint("Radius", 36, Q("3 mm")),
    Sketcher.Constraint("Radius", 40, Q("3 mm")),
    Sketcher.Constraint("Radius", 42, Q("3 mm")),
    Sketcher.Constraint("Radius", 44, Q("3 mm")),
    Sketcher.Constraint("DistanceY", -1, 1, 10, 2, Q("1 mm")),
    Sketcher.Constraint("DistanceY", 11, 2, -1, 1, Q("1 mm")),
    Sketcher.Constraint("Radius", 17, Q("26.1523 mm")),
    Sketcher.Constraint("Radius", 21, Q("20.1524 mm")),
    Sketcher.Constraint("Radius", 23, Q("26.1514 mm")),
    Sketcher.Constraint("Radius", 25, Q("20.1524 mm")),
    Sketcher.Constraint("Radius", 29, Q("20.1523 mm")),
    Sketcher.Constraint("Radius", 31, Q("26.1541 mm")),
    Sketcher.Constraint("Radius", 33, Q("20.1524 mm")),
    Sketcher.Constraint("Radius", 37, Q("20.3832 mm")),
    Sketcher.Constraint("Radius", 41, Q("20.1523 mm")),
    Sketcher.Constraint("Radius", 43, Q("26.1533 mm")),
    Sketcher.Constraint("Radius", 45, Q("20.3832 mm")),
    Sketcher.Constraint("DistanceX", 8, 2, 8, 1, Q("41.274 mm")),
    Sketcher.Constraint("DistanceX", 17, 3, -1, 1, Q("7.38 mm")),
    Sketcher.Constraint("DistanceX", 22, 1, -1, 1, Q("14.97 mm")),
    Sketcher.Constraint("DistanceX", 43, 1, -1, 1, Q("14.97 mm")),
    Sketcher.Constraint("Distance", 4, Q("41.274 mm")),
    Sketcher.Constraint("Distance", 6, Q("42.107 mm")),
    Sketcher.Constraint("DistanceX", 2, 1, 2, 2, Q("41.6906 mm")),
    Sketcher.Constraint("DistanceY", 1, 3, -1, 1, Q("36.105 mm")),
    Sketcher.Constraint("DistanceX", -1, 1, 7, 3, Q("20.533 mm")),
    Sketcher.Constraint("DistanceY", -1, 1, 7, 3, Q("36.105 mm")),
    Sketcher.Constraint("DistanceY", 12, 3, -1, 1, Q("35.105 mm")),
    Sketcher.Constraint("DistanceX", -1, 1, 13, 3, Q("20.372 mm")),
    Sketcher.Constraint("DistanceY", 13, 3, -1, 1, Q("35.105 mm")),
    Sketcher.Constraint("DistanceY", -1, 1, 14, 3, Q("35.105 mm")),
    Sketcher.Constraint("DistanceY", -1, 1, 15, 3, Q("35.105 mm")),
    Sketcher.Constraint("DistanceY", 16, 3, -1, 1, Q("11.276 mm")),
    Sketcher.Constraint("DistanceX", 24, 3, -1, 1, Q("11.856 mm")),
    Sketcher.Constraint("DistanceY", -1, 1, 24, 3, Q("26.105 mm")),
    Sketcher.Constraint("DistanceY", -1, 1, 25, 3, Q("6.355 mm")),
    Sketcher.Constraint("DistanceX", 29, 3, -1, 1, Q("7.382 mm")),
    Sketcher.Constraint("DistanceX", -1, 1, 34, 3, Q("12.415 mm")),
    Sketcher.Constraint("DistanceY", 36, 3, -1, 1, Q("14.218 mm")),
    Sketcher.Constraint("DistanceX", -1, 1, 37, 3, Q("0.191 mm")),
    Sketcher.Constraint("DistanceY", 37, 3, -1, 1, Q("6.355 mm")),
    Sketcher.Constraint("DistanceY", 38, 3, -1, 1, Q("26.105 mm")),
    Sketcher.Constraint("DistanceX", -1, 1, 46, 3, Q("22.169 mm")),
    Sketcher.Constraint("DistanceY", 0, 2, -1, 1, Q("37.105 mm")),
    Sketcher.Constraint("DistanceY", 3, 2, -1, 1, Q("37.105 mm")),
    Sketcher.Constraint("DistanceX", -1, 1, 6, 2, Q("22.265 mm")),
    Sketcher.Constraint("DistanceX", -1, 1, 7, 2, Q("20.533 mm")),
    Sketcher.Constraint("DistanceX", -1, 1, 16, 1, Q("15.317 mm")),
    Sketcher.Constraint("DistanceX", 23, 1, -1, 1, Q("9.207 mm")),
    Sketcher.Constraint("DistanceY", -1, 1, 23, 1, Q("19.685 mm")),
    Sketcher.Constraint("DistanceY", -1, 1, 24, 1, Q("23.546 mm")),
    Sketcher.Constraint("DistanceY", -1, 1, 25, 2, Q("12.686 mm")),
    Sketcher.Constraint("DistanceY", -1, 1, 26, 1, Q("14.571 mm")),
    Sketcher.Constraint("DistanceX", -1, 1, 28, 1, Q("10.216 mm")),
    Sketcher.Constraint("DistanceY", -1, 1, 28, 1, Q("9.677 mm")),
    Sketcher.Constraint("DistanceX", -1, 1, 32, 1, Q("19.392 mm")),
    Sketcher.Constraint("DistanceY", -1, 1, 35, 1, Q("14.435 mm")),
    Sketcher.Constraint("DistanceY", 38, 1, -1, 1, Q("28.639 mm")),
    Sketcher.Constraint("DistanceX", 39, 1, -1, 1, Q("24.656 mm")),
    Sketcher.Constraint("DistanceX", 42, 1, -1, 1, Q("9.207 mm")),
    Sketcher.Constraint("DistanceY", 42, 1, -1, 1, Q("19.685 mm")),
    Sketcher.Constraint("DistanceX", -1, 1, 44, 1, Q("11.009 mm")),
    Sketcher.Constraint("DistanceY", 45, 2, -1, 1, Q("13.314 mm")),
    Sketcher.Constraint("DistanceX", -1, 1, 46, 1, Q("24.989 mm")),
    Sketcher.Constraint("Distance", 0, Q("41.6906 mm")),
    Sketcher.Constraint("Distance", 10, Q("41.6906 mm")),
    Sketcher.Constraint("DistanceX", 1, 3, -1, 1, Q("20.7412 mm")),
    Sketcher.Constraint("DistanceX", -1, 1, 3, 3, Q("20.9494 mm")),
    Sketcher.Constraint("DistanceX", -1, 1, 5, 3, Q("41.5865 mm")),
    Sketcher.Constraint("DistanceY", 5, 3, -1, 1, Q("0.3607 mm")),
    Sketcher.Constraint("DistanceX", 9, 3, -1, 1, Q("20.7412 mm")),
    Sketcher.Constraint("DistanceX", 12, 3, -1, 1, Q("20.1638 mm")),
    Sketcher.Constraint("DistanceX", 14, 3, -1, 1, Q("19.7473 mm")),
    Sketcher.Constraint("DistanceX", -1, 1, 15, 3, Q("19.9556 mm")),
    Sketcher.Constraint("DistanceX", -1, 1, 16, 3, Q("12.7133 mm")),
    Sketcher.Constraint("DistanceX", -1, 1, 18, 3, Q("7.5775 mm")),
    Sketcher.Constraint("DistanceX", 20, 3, -1, 1, Q("7.2562 mm")),
    Sketcher.Constraint("DistanceX", -1, 1, 21, 3, Q("7.7976 mm")),
    Sketcher.Constraint("DistanceX", 22, 3, -1, 1, Q("12.3582 mm")),
    Sketcher.Constraint("DistanceX", 26, 3, -1, 1, Q("21.7546 mm")),
    Sketcher.Constraint("DistanceX", -1, 1, 28, 3, Q("12.8358 mm")),
    Sketcher.Constraint("DistanceX", -1, 1, 30, 3, Q("7.7677 mm")),
    Sketcher.Constraint("DistanceX", -1, 1, 32, 3, Q("22.2452 mm")),
    Sketcher.Constraint("DistanceX", 40, 3, -1, 1, Q("12.3582 mm")),
    Sketcher.Constraint("DistanceY", 40, 3, -1, 1, Q("11.2076 mm")),
    Sketcher.Constraint("DistanceX", 42, 3, -1, 1, Q("7.2562 mm")),
    Sketcher.Constraint("DistanceX", -1, 1, 44, 3, Q("12.6012 mm")),
    Sketcher.Constraint("DistanceX", 1, 2, -1, 1, Q("20.7412 mm")),
    Sketcher.Constraint("DistanceX", -1, 1, 17, 1, Q("9.5156 mm")),
    Sketcher.Constraint("DistanceX", -1, 1, 18, 1, Q("5.6394 mm")),
    Sketcher.Constraint("DistanceX", -1, 1, 19, 2, Q("10.1097 mm")),
    Sketcher.Constraint("DistanceX", 20, 1, -1, 1, Q("5.3056 mm")),
    Sketcher.Constraint("DistanceX", 21, 2, -1, 1, Q("9.7465 mm")),
    Sketcher.Constraint("DistanceX", 27, 1, -1, 1, Q("13.4216 mm")),
    Sketcher.Constraint("DistanceX", -1, 1, 29, 2, Q("5.8047 mm")),
    Sketcher.Constraint("DistanceX", -1, 1, 30, 1, Q("9.7308 mm")),
    Sketcher.Constraint("DistanceX", -1, 1, 31, 1, Q("15.4555 mm")),
    Sketcher.Constraint("DistanceX", -1, 1, 33, 2, Q("10.8356 mm")),
    Sketcher.Constraint("DistanceX", -1, 1, 34, 1, Q("13.9946 mm")),
    Sketcher.Constraint("DistanceX", 36, 1, -1, 1, Q("19.0054 mm")),
    Sketcher.Constraint("DistanceX", 37, 2, -1, 1, Q("10.7215 mm")),
    Sketcher.Constraint("DistanceX", 40, 1, -1, 1, Q("9.7465 mm")),
    Sketcher.Constraint("DistanceX", 41, 2, -1, 1, Q("5.3056 mm")),
    Sketcher.Constraint("DistanceX", -1, 1, 47, 1, Q("14.1935 mm")),
])
pad2 = doc.addObject("PartDesign::Pad", "Pad001")
body.addObject(pad2)
pad2.Profile = sketch2
pad2.Length = 4

# Sketch on XY plane
sketch3 = doc.addObject("Sketcher::SketchObject", "Sketch002")
body.addObject(sketch3)
sketch3.AttachmentSupport = (doc.XY_Plane, [""])
sketch3.MapMode = "FlatFace"
sketch3.AttachmentOffset = App.Placement(App.Vector(0, 0, 14), App.Rotation())
sketch3.addGeometry([
    Part.Circle(App.Vector(-19.7, 35.1, 0), App.Vector(0, 0, 1), 1.6),
    Part.Circle(App.Vector(20, 35.1, 0), App.Vector(0, 0, 1), 1.6),
    Part.Circle(App.Vector(-20.2, -35.1, 0), App.Vector(0, 0, 1), 1.6),
    Part.Circle(App.Vector(20.4, -35.1, 0), App.Vector(0, 0, 1), 1.6),
], False)
sketch3.addConstraint([
    Sketcher.Constraint("Equal", 0, 1),
    Sketcher.Constraint("Equal", 1, 2),
    Sketcher.Constraint("Equal", 2, 3),
    Sketcher.Constraint("Horizontal", 0, 3, 1, 3),
    Sketcher.Constraint("Horizontal", 2, 3, 3, 3),
    Sketcher.Constraint("Diameter", 0, Q("3.2 mm")),
    Sketcher.Constraint("DistanceY", -1, 1, 0, 3, Q("35.105 mm")),
    Sketcher.Constraint("DistanceY", 2, 3, -1, 1, Q("35.105 mm")),
    Sketcher.Constraint("DistanceX", -1, 1, 3, 3, Q("20.372 mm")),
    Sketcher.Constraint("DistanceX", 0, 3, 1, 3, Q("39.703 mm")),
    Sketcher.Constraint("DistanceX", 2, 3, 3, 3, Q("40.536 mm")),
    Sketcher.Constraint("DistanceX", 0, 3, -1, 1, Q("19.7473 mm")),
])
pocket1 = doc.addObject("PartDesign::Pocket", "Pocket")
body.addObject(pocket1)
pocket1.Profile = sketch3
pocket1.Type = "ThroughAll"

doc.recompute()
